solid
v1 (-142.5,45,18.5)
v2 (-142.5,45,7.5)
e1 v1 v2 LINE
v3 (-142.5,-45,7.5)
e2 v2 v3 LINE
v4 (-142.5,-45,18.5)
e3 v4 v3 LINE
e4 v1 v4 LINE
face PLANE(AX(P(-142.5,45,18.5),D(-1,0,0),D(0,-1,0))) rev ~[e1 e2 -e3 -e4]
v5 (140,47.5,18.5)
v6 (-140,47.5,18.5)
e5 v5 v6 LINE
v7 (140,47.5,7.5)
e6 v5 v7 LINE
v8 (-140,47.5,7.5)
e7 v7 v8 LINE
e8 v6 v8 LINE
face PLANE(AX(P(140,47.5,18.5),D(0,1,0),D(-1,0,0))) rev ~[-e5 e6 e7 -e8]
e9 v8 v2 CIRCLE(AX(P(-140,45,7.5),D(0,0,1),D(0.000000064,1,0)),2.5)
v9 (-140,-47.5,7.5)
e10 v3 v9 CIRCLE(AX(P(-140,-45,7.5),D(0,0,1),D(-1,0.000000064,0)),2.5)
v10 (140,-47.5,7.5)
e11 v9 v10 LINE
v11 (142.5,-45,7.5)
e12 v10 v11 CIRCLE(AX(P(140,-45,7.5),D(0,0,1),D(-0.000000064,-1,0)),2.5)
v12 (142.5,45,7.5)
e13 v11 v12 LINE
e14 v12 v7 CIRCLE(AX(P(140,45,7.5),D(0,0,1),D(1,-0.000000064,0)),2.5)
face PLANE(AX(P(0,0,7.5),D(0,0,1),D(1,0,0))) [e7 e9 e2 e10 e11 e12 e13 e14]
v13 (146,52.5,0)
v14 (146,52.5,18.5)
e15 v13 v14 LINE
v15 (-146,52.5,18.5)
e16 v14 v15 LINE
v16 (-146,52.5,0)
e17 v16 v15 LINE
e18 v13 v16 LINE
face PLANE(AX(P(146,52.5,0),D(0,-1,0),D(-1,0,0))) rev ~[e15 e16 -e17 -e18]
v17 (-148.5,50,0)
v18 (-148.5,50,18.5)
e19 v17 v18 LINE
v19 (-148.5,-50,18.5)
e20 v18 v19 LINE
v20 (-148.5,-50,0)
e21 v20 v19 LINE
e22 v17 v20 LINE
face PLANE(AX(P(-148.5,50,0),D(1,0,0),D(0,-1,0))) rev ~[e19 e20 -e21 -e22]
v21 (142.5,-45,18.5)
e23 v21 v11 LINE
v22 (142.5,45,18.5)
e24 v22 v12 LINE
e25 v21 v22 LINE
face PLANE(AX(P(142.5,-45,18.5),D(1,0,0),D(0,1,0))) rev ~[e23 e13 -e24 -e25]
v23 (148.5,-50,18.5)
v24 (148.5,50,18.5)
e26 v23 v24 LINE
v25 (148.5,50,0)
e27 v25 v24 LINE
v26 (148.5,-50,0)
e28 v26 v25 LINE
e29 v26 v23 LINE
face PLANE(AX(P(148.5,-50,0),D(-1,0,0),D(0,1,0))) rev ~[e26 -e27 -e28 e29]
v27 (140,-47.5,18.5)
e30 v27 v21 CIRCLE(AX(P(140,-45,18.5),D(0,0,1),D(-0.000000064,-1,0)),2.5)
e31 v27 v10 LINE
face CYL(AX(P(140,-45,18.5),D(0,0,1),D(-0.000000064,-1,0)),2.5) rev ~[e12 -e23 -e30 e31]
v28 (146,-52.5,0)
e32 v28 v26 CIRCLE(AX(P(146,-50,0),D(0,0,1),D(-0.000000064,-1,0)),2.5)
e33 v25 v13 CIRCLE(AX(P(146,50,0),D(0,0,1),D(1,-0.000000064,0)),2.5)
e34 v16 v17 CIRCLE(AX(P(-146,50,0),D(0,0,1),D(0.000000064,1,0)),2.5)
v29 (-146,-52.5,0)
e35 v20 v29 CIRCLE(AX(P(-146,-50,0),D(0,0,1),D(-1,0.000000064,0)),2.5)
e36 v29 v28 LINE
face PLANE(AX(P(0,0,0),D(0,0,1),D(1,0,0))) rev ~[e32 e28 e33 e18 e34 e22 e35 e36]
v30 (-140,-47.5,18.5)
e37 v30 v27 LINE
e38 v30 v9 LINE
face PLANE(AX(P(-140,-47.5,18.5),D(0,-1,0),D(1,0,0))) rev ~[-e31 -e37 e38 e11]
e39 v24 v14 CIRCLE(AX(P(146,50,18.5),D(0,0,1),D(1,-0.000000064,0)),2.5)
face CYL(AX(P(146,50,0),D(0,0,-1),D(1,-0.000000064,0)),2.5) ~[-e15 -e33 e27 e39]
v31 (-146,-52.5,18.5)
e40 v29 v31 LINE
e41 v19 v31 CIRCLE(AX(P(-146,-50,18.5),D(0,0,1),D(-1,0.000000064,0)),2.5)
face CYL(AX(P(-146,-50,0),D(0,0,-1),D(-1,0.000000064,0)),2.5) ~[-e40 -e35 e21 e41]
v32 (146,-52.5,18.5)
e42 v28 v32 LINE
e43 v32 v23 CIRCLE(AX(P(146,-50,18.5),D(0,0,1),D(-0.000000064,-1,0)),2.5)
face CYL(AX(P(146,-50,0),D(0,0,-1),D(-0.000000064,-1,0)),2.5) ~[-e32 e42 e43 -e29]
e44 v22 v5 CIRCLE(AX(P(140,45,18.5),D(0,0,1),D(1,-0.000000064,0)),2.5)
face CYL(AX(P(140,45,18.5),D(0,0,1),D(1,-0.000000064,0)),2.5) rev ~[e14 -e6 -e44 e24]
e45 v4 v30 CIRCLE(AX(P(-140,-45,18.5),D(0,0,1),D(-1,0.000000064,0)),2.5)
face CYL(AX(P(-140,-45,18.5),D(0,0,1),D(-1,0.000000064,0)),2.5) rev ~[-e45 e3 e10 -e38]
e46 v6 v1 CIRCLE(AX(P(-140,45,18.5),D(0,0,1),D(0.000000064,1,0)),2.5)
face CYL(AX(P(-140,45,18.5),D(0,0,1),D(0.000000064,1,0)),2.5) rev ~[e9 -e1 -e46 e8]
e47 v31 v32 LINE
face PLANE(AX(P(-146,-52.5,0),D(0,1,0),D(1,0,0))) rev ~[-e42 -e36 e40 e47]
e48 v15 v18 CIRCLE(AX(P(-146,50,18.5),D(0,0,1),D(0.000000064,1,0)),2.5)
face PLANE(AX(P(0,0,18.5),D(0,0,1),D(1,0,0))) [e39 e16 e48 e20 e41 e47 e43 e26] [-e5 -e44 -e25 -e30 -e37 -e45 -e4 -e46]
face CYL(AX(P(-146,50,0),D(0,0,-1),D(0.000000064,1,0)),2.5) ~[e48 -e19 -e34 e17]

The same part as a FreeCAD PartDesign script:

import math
import FreeCAD as App
import Part
import Sketcher
from FreeCAD import Vector

doc = App.newDocument("Part")
body = doc.addObject("PartDesign::Body", "Body")

# Sketch on XY plane
sketch1 = body.newObject("Sketcher::SketchObject", "Sketch")
sketch1.AttachmentSupport = (doc.getObject("XY_Plane"), [""])
sketch1.MapMode = "FlatFace"
sketch1.addGeometry([
    Part.LineSegment(Vector(148.5, -50, 0), Vector(148.5, 50, 0)),  # 0
    Part.ArcOfCircle(Part.Circle(Vector(146, 50, 0), Vector(0, 0, 1), 2.5), math.radians(0), math.radians(90)),  # 1
    Part.LineSegment(Vector(146, 52.5, 0), Vector(-146, 52.5, 0)),  # 2
    Part.ArcOfCircle(Part.Circle(Vector(-146, 50, 0), Vector(0, 0, 1), 2.5), math.radians(90), math.radians(180)),  # 3
    Part.LineSegment(Vector(-148.5, 50, 0), Vector(-148.5, -50, 0)),  # 4
    Part.ArcOfCircle(Part.Circle(Vector(-146, -50, 0), Vector(0, 0, 1), 2.5), math.radians(180), math.radians(270)),  # 5
    Part.LineSegment(Vector(-146, -52.5, 0), Vector(146, -52.5, 0)),  # 6
    Part.ArcOfCircle(Part.Circle(Vector(146, -50, 0), Vector(0, 0, 1), 2.5), math.radians(-90), math.radians(0)),  # 7
], False)
sketch1.addConstraint([
    Sketcher.Constraint("Tangent", 0, 2, 1, 1),
    Sketcher.Constraint("Tangent", 1, 2, 2, 1),
    Sketcher.Constraint("Tangent", 2, 2, 3, 1),
    Sketcher.Constraint("Tangent", 3, 2, 4, 1),
    Sketcher.Constraint("Tangent", 4, 2, 5, 1),
    Sketcher.Constraint("Tangent", 5, 2, 6, 1),
    Sketcher.Constraint("Tangent", 6, 2, 7, 1),
    Sketcher.Constraint("Tangent", 7, 2, 0, 1),
    Sketcher.Constraint("Vertical", 0),
    Sketcher.Constraint("Horizontal", 2),
    Sketcher.Constraint("Vertical", 4),
    Sketcher.Constraint("Horizontal", 6),
    Sketcher.Constraint("Equal", 1, 3),
    Sketcher.Constraint("Equal", 3, 5),
    Sketcher.Constraint("Equal", 5, 7),
    Sketcher.Constraint("Symmetric", 1, 3, 5, 3, -1, 1),
    Sketcher.Constraint("Radius", 1, 2.5),
    Sketcher.Constraint("DistanceX", 2, 2, 2, 1, 292.0),
    Sketcher.Constraint("DistanceY", 0, 1, 0, 2, 100.0),
])
pad1 = body.newObject("PartDesign::Pad", "Pad")
pad1.Profile = sketch1
pad1.Length = 18.5

# Sketch on XY plane
sketch2 = body.newObject("Sketcher::SketchObject", "Sketch001")
sketch2.AttachmentSupport = (doc.getObject("XY_Plane"), [""])
sketch2.MapMode = "FlatFace"
sketch2.AttachmentOffset = App.Placement(Vector(0, 0, 18.5), App.Rotation())
sketch2.addGeometry([
    Part.LineSegment(Vector(142.5, -45, 0), Vector(142.5, 45, 0)),  # 0
    Part.ArcOfCircle(Part.Circle(Vector(140, 45, 0), Vector(0, 0, 1), 2.5), math.radians(0), math.radians(90)),  # 1
    Part.LineSegment(Vector(140, 47.5, 0), Vector(-140, 47.5, 0)),  # 2
    Part.ArcOfCircle(Part.Circle(Vector(-140, 45, 0), Vector(0, 0, 1), 2.5), math.radians(90), math.radians(180)),  # 3
    Part.LineSegment(Vector(-142.5, 45, 0), Vector(-142.5, -45, 0)),  # 4
    Part.ArcOfCircle(Part.Circle(Vector(-140, -45, 0), Vector(0, 0, 1), 2.5), math.radians(180), math.radians(270)),  # 5
    Part.LineSegment(Vector(-140, -47.5, 0), Vector(140, -47.5, 0)),  # 6
    Part.ArcOfCircle(Part.Circle(Vector(140, -45, 0), Vector(0, 0, 1), 2.5), math.radians(-90), math.radians(0)),  # 7
], False)
sketch2.addConstraint([
    Sketcher.Constraint("Tangent", 0, 2, 1, 1),
    Sketcher.Constraint("Tangent", 1, 2, 2, 1),
    Sketcher.Constraint("Tangent", 2, 2, 3, 1),
    Sketcher.Constraint("Tangent", 3, 2, 4, 1),
    Sketcher.Constraint("Tangent", 4, 2, 5, 1),
    Sketcher.Constraint("Tangent", 5, 2, 6, 1),
    Sketcher.Constraint("Tangent", 6, 2, 7, 1),
    Sketcher.Constraint("Tangent", 7, 2, 0, 1),
    Sketcher.Constraint("Vertical", 0),
    Sketcher.Constraint("Horizontal", 2),
    Sketcher.Constraint("Vertical", 4),
    Sketcher.Constraint("Horizontal", 6),
    Sketcher.Constraint("Equal", 1, 3),
    Sketcher.Constraint("Equal", 3, 5),
    Sketcher.Constraint("Equal", 5, 7),
    Sketcher.Constraint("Symmetric", 1, 3, 5, 3, -1, 1),
    Sketcher.Constraint("Radius", 1, 2.5),
    Sketcher.Constraint("DistanceX", 2, 2, 2, 1, 280.0),
    Sketcher.Constraint("DistanceY", 0, 1, 0, 2, 90.0),
])
pocket1 = body.newObject("PartDesign::Pocket", "Pocket")
pocket1.Profile = sketch2
pocket1.Length = 11

doc.recompute()
